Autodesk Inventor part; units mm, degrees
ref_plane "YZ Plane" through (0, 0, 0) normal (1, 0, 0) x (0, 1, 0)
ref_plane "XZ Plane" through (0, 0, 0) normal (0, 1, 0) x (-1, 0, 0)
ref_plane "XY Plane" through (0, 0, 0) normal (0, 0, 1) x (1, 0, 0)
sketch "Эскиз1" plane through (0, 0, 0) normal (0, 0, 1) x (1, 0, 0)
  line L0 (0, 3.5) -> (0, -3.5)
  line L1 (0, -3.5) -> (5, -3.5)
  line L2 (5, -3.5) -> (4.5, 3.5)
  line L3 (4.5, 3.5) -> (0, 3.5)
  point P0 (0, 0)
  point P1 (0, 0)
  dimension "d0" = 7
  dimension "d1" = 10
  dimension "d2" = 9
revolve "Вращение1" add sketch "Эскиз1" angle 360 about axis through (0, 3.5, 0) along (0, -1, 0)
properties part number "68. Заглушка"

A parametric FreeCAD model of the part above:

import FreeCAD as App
import Part
import Sketcher
Q = App.Units.Quantity

doc = App.newDocument("Part")
body = doc.addObject("PartDesign::Body", "Body")

# Sketch on XY plane
sketch1 = body.newObject("Sketcher::SketchObject", "Sketch")
sketch1.AttachmentSupport = (doc.getObject("XY_Plane"), [""])
sketch1.MapMode = "FlatFace"
sketch1.addGeometry([
    Part.LineSegment(App.Vector(4.5, 3.5, 0), App.Vector(0, 3.5, 0)),
    Part.LineSegment(App.Vector(0, 3.5, 0), App.Vector(0, -3.5, 0)),
    Part.LineSegment(App.Vector(0, -3.5, 0), App.Vector(5, -3.5, 0)),
    Part.LineSegment(App.Vector(5, -3.5, 0), App.Vector(4.5, 3.5, 0)),
], False)
sketch1.addConstraint([
    Sketcher.Constraint("Coincident", 0, 2, 1, 1),
    Sketcher.Constraint("Coincident", 1, 2, 2, 1),
    Sketcher.Constraint("Coincident", 2, 2, 3, 1),
    Sketcher.Constraint("Coincident", 3, 2, 0, 1),
    Sketcher.Constraint("Horizontal", 0),
    Sketcher.Constraint("Vertical", 1),
    Sketcher.Constraint("Horizontal", 2),
    Sketcher.Constraint("Symmetric", 0, 2, 1, 2, -1, 1),
    Sketcher.Constraint("DistanceY", 1, 2, 1, 1, Q("7 mm")),
    Sketcher.Constraint("DistanceX", 2, 1, 2, 2, Q("5 mm")),
    Sketcher.Constraint("DistanceX", 0, 2, 0, 1, Q("4.5 mm")),
])
revolution = body.newObject("PartDesign::Revolution", "Revolution")
revolution.Profile = sketch1
revolution.ReferenceAxis = (sketch1, ["V_Axis"])
revolution.Angle = 360

doc.recompute()
